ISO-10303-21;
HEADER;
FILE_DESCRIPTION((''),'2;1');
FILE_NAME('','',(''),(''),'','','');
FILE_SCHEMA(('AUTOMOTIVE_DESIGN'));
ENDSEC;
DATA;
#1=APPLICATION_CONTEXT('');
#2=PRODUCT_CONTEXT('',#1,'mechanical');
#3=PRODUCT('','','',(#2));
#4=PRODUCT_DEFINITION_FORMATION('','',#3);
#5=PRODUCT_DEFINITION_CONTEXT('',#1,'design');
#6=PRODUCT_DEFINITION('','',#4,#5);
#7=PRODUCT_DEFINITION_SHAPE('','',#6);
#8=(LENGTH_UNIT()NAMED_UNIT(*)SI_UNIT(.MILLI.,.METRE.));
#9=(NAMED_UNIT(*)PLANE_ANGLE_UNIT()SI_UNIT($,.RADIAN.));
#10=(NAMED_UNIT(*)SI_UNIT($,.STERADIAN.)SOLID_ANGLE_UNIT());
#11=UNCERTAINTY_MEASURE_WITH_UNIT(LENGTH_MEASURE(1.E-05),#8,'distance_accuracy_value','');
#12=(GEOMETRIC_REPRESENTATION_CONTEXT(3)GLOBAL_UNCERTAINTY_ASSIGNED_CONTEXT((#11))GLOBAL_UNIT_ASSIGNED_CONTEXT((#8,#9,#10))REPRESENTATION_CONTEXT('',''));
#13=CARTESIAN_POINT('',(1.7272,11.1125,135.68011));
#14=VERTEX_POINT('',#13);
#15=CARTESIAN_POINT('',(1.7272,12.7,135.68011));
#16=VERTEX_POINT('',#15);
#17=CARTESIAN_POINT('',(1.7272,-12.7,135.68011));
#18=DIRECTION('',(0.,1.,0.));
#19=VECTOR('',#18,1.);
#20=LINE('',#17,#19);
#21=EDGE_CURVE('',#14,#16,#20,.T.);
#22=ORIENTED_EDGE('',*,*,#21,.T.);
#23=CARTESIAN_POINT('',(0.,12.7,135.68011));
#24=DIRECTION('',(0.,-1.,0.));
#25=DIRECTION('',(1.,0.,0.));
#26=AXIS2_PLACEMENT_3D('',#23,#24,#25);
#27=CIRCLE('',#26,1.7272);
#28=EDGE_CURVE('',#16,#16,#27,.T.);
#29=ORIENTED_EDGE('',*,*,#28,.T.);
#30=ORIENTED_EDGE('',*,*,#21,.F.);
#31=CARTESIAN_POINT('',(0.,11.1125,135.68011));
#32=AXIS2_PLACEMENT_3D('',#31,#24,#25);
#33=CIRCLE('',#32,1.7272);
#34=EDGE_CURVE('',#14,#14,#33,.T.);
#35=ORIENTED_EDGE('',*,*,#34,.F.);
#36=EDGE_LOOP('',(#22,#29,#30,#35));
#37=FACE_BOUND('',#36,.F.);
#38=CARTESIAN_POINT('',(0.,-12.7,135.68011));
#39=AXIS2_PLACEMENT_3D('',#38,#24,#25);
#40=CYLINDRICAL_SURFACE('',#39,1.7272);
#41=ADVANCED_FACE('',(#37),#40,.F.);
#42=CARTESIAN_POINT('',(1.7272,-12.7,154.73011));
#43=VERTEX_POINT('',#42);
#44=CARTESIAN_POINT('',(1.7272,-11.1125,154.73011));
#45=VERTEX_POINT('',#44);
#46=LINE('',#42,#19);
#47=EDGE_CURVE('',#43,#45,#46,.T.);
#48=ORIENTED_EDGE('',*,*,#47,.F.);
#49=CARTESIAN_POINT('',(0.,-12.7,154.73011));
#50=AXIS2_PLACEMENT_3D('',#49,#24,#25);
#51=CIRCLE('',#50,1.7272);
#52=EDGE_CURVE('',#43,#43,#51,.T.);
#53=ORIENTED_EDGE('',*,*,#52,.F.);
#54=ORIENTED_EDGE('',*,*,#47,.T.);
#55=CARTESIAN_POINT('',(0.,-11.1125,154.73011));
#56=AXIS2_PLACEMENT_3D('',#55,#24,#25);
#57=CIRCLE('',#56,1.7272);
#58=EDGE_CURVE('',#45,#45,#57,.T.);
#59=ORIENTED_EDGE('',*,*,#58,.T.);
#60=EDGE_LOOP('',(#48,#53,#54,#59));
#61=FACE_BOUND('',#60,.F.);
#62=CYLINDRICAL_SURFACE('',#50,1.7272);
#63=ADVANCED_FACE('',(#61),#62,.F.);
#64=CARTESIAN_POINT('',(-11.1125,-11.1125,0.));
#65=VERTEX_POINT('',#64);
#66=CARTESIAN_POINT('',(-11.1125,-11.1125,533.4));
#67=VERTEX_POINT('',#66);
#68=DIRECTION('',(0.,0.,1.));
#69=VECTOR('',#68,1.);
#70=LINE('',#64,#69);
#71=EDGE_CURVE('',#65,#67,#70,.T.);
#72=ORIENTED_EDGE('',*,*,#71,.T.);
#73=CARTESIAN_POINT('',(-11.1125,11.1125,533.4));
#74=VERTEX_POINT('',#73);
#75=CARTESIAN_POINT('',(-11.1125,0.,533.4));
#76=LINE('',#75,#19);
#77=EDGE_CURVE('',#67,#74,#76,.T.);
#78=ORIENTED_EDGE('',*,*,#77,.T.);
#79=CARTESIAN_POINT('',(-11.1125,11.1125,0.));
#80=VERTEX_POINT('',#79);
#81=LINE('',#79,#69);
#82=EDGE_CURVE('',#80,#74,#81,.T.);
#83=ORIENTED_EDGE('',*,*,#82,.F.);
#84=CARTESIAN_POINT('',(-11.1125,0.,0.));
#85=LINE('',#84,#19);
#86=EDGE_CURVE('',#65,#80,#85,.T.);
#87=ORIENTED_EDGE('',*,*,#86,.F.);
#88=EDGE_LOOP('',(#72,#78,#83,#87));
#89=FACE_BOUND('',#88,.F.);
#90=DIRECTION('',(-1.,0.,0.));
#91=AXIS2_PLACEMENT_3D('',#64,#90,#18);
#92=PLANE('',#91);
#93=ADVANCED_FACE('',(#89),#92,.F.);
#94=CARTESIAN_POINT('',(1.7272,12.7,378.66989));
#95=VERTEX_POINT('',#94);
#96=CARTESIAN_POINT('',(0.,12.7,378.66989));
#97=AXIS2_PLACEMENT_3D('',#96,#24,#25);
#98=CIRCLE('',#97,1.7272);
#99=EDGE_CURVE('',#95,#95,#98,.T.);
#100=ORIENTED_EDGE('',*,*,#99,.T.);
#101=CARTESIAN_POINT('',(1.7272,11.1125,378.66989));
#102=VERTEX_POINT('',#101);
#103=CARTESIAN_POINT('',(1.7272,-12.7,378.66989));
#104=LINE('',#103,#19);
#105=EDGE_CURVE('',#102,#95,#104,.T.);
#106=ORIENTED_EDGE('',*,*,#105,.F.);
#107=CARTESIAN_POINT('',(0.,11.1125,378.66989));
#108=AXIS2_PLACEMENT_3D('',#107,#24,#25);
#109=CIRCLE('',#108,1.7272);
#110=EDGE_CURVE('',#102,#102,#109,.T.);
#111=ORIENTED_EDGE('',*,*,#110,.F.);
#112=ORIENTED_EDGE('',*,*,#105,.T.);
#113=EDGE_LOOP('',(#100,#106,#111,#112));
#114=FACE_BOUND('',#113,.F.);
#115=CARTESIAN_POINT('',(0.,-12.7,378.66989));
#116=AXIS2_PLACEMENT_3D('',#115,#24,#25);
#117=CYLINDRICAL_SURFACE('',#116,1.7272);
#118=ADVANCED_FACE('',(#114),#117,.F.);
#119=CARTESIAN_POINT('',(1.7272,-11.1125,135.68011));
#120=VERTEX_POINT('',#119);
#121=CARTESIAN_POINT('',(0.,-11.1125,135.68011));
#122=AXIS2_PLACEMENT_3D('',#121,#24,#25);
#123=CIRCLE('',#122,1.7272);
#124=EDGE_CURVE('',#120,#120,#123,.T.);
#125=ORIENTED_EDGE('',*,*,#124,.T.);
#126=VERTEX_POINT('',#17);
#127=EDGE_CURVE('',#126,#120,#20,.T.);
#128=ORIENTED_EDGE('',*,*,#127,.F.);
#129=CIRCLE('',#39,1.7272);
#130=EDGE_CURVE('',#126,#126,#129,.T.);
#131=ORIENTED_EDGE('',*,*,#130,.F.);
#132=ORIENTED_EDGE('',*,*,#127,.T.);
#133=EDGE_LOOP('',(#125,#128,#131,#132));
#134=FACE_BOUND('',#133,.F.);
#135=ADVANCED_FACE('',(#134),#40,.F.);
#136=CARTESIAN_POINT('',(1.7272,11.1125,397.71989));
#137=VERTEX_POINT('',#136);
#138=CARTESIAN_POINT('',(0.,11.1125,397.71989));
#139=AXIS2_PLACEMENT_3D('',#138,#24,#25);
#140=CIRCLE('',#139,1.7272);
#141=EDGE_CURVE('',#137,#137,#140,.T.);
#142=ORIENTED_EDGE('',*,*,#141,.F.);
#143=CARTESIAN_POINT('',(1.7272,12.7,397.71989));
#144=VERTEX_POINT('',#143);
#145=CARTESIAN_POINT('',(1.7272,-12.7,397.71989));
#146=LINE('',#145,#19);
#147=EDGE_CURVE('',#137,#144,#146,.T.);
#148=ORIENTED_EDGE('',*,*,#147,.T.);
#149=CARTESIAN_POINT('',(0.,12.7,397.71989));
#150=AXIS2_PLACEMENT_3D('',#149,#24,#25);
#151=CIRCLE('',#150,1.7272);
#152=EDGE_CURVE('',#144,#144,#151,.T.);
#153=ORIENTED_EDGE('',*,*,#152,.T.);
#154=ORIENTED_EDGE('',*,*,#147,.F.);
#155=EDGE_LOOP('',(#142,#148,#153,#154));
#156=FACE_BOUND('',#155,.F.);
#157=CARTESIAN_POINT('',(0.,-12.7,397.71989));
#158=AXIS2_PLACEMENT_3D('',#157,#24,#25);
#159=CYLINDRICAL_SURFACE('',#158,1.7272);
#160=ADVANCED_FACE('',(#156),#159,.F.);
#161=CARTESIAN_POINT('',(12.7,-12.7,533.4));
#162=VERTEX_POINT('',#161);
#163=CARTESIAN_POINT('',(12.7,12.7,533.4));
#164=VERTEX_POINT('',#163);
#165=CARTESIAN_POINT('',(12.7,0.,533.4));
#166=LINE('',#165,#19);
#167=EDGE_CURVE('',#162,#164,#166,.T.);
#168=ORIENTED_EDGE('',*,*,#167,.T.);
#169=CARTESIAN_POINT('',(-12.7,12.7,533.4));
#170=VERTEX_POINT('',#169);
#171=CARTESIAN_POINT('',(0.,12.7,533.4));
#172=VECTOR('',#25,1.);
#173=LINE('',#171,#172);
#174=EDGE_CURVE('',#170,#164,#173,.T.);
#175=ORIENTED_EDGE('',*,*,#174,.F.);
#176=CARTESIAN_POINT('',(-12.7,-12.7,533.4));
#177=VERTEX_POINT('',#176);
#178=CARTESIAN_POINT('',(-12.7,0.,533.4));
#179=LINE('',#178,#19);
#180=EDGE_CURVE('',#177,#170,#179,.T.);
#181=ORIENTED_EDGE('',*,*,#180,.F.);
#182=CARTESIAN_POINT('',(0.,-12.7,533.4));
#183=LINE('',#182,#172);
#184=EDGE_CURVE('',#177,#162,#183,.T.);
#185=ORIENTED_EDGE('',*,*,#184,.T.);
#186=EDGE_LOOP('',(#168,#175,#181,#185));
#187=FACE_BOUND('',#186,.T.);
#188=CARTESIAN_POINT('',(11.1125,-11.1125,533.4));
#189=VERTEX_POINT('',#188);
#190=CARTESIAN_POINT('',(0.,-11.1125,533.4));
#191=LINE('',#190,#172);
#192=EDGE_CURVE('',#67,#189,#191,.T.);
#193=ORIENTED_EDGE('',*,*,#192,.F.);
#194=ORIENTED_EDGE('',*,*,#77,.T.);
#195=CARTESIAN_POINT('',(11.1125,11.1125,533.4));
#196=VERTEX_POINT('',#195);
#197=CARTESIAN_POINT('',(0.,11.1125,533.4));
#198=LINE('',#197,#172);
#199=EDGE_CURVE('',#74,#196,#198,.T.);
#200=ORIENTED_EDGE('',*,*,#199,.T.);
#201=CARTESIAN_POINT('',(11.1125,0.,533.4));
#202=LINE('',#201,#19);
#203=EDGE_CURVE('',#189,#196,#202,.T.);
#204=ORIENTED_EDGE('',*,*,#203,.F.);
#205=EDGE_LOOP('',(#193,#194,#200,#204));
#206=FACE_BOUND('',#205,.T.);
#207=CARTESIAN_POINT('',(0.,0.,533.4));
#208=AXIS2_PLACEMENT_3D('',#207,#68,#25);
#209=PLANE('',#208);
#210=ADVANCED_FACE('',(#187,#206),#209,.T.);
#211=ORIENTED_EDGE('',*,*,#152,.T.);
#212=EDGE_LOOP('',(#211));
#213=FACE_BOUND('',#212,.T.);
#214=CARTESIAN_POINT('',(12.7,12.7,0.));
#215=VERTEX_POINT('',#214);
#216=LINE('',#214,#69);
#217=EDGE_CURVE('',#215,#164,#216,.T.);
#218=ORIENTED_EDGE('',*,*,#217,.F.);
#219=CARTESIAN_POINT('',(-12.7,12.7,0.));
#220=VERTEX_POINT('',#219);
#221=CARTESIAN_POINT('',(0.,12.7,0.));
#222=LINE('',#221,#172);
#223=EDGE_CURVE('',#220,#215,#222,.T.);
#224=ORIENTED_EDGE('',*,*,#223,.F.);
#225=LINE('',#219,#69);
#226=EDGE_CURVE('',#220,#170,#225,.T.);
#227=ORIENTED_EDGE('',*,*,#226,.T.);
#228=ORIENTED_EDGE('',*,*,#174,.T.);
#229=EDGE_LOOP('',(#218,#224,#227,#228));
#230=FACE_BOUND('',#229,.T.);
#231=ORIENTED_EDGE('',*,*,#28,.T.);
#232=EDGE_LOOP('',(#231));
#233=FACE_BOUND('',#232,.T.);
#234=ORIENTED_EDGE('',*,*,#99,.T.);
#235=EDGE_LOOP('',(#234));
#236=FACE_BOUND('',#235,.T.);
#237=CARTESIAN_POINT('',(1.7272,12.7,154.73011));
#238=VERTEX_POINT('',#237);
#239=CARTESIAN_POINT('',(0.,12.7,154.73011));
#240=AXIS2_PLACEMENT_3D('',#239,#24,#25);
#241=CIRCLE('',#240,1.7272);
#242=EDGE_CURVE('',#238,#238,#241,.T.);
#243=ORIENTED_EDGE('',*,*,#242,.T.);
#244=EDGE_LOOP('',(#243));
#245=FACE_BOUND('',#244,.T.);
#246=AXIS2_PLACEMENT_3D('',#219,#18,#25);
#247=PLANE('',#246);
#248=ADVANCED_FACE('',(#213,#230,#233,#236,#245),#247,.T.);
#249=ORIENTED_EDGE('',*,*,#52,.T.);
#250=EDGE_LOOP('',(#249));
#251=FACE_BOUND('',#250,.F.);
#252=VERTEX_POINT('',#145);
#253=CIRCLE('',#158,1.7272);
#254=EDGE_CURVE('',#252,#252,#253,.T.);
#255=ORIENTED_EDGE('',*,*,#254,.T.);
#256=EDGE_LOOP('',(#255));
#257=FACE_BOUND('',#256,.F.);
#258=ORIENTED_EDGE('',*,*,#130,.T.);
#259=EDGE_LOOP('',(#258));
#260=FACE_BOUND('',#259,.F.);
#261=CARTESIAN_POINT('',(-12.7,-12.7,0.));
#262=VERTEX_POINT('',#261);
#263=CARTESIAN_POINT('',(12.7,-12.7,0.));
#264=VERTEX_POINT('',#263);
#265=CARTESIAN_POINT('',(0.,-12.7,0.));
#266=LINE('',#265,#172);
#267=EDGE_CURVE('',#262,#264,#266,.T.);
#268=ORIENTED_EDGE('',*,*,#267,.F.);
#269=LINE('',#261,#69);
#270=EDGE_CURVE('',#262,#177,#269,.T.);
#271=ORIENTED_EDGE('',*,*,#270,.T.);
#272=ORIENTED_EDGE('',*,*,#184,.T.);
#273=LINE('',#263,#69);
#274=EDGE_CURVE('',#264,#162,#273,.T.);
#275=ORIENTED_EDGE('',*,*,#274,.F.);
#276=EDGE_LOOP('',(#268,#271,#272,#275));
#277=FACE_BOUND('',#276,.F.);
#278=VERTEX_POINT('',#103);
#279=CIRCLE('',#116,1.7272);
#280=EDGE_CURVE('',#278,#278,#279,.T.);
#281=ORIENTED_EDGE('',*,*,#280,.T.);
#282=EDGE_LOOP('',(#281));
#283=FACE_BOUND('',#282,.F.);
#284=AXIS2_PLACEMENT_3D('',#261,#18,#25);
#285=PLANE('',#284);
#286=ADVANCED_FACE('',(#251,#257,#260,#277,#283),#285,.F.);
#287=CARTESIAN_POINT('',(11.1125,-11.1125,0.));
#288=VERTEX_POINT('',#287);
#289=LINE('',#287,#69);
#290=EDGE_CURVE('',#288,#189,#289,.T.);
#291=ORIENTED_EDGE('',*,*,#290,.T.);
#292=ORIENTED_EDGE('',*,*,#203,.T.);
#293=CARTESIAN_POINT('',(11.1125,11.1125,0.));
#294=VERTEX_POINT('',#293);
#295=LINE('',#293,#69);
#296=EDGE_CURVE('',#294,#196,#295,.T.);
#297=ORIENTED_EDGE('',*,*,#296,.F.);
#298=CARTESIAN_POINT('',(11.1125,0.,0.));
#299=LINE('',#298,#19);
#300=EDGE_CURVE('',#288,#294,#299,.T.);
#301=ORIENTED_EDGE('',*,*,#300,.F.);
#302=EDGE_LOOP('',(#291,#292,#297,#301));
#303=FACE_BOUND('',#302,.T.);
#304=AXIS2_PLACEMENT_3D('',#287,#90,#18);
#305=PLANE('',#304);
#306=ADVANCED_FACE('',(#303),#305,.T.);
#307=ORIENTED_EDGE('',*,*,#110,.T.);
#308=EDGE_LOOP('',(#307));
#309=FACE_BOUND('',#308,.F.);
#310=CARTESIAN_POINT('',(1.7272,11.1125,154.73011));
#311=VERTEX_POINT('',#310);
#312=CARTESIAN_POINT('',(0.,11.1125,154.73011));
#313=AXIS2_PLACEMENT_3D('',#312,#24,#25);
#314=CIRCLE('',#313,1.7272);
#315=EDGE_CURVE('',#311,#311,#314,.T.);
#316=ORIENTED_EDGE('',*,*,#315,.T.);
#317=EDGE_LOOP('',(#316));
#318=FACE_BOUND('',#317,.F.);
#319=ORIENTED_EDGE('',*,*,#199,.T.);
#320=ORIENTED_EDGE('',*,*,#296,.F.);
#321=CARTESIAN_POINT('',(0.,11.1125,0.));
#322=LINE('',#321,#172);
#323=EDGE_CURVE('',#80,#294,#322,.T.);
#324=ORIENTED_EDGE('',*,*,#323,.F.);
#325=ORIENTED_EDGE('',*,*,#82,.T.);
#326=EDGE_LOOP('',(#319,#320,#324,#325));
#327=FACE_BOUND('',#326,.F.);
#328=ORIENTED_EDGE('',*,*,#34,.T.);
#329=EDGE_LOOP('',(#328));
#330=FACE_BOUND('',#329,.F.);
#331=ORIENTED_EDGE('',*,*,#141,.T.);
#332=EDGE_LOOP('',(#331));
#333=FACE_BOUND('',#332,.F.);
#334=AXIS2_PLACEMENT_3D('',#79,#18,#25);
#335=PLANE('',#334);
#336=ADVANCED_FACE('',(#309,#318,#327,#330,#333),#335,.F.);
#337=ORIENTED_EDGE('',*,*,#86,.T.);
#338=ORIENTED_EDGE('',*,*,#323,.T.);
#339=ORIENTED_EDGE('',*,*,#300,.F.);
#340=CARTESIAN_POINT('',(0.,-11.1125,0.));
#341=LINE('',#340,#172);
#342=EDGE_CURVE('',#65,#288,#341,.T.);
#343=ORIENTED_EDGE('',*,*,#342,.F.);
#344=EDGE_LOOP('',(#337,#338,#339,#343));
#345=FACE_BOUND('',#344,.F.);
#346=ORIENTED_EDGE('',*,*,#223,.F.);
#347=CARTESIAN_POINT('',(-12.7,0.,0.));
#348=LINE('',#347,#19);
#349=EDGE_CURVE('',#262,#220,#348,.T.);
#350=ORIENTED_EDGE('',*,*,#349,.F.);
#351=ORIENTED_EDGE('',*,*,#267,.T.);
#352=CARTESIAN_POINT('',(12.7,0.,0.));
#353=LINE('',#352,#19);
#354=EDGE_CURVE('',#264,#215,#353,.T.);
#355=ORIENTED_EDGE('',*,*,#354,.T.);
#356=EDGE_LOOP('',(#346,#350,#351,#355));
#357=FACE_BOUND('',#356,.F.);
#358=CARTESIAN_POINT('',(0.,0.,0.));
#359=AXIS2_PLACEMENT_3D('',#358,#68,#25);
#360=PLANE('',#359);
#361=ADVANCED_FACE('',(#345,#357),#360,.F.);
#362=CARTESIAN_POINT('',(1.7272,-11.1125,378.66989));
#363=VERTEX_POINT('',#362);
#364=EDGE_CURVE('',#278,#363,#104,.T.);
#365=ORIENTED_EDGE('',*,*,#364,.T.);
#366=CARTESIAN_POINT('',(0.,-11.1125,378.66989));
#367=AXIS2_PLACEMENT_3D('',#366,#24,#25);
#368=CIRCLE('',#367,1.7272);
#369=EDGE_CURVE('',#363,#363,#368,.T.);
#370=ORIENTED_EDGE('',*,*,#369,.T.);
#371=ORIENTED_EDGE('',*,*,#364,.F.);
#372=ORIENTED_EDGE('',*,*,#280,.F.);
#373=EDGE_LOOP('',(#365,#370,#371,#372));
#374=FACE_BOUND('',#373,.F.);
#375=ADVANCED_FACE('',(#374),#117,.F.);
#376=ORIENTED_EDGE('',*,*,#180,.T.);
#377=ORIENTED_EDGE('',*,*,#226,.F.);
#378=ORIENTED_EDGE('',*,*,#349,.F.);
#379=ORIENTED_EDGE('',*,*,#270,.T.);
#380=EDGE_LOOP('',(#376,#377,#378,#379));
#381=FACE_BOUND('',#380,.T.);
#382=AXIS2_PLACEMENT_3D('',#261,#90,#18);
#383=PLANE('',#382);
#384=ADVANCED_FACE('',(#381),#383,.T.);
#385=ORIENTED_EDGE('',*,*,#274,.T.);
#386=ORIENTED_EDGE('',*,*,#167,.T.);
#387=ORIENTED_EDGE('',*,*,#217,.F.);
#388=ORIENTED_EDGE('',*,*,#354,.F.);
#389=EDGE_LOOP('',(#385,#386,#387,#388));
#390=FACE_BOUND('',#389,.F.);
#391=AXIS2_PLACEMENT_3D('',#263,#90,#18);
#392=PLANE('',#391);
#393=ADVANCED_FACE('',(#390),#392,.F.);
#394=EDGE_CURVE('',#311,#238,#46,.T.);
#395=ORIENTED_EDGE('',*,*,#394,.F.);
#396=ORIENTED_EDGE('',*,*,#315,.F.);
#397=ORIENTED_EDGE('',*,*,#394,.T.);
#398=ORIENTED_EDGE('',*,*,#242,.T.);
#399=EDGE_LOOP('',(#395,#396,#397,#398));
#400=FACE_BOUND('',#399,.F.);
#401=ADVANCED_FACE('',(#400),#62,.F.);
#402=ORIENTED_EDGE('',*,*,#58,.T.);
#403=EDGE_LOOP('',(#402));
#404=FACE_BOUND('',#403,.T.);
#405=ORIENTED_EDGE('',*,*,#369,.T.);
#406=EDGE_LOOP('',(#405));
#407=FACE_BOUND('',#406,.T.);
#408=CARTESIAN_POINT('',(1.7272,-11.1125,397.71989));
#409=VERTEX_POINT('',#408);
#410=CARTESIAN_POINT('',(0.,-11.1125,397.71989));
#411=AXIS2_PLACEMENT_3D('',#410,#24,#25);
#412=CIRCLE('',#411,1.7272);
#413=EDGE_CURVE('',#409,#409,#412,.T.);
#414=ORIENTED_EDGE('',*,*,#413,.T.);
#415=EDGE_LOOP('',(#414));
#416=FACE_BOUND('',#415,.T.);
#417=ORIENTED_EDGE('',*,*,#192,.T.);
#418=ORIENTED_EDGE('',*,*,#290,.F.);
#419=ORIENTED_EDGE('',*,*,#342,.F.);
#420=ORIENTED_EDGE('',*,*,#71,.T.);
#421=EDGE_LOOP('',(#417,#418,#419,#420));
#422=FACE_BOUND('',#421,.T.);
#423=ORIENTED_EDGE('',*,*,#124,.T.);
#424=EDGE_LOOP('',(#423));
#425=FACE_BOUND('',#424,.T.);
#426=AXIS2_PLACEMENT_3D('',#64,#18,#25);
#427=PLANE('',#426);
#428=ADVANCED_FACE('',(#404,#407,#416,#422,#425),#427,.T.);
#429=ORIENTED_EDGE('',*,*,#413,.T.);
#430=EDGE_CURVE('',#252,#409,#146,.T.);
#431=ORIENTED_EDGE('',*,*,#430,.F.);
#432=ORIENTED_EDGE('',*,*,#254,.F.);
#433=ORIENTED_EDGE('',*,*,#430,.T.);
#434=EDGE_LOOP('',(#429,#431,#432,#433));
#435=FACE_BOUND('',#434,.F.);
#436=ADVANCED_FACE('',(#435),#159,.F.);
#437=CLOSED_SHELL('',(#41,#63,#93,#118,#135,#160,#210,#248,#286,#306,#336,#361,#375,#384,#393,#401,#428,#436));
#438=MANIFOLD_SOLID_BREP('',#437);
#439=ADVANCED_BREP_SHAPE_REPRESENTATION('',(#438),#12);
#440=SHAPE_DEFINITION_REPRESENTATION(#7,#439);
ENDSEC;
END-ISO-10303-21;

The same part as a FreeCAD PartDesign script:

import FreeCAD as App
import Part
import Sketcher

V = App.Vector
Q = App.Units.Quantity

doc = App.newDocument("Part")
body = doc.addObject("PartDesign::Body", "Body")

sketch1 = doc.addObject("Sketcher::SketchObject", "Sketch")
body.addObject(sketch1)
sketch1.AttachmentSupport = (doc.XY_Plane, [""])
sketch1.MapMode = "FlatFace"
sketch1.addGeometry(Part.LineSegment(V(-12.7, 12.7, 0), V(-12.7, -12.7, 0)), False)
sketch1.addGeometry(Part.LineSegment(V(-12.7, -12.7, 0), V(12.7, -12.7, 0)), False)
sketch1.addGeometry(Part.LineSegment(V(12.7, -12.7, 0), V(12.7, 12.7, 0)), False)
sketch1.addGeometry(Part.LineSegment(V(12.7, 12.7, 0), V(-12.7, 12.7, 0)), False)
sketch1.addGeometry(Part.LineSegment(V(11.1125, -11.1125, 0), V(-11.1125, -11.1125, 0)), False)
sketch1.addGeometry(Part.LineSegment(V(-11.1125, -11.1125, 0), V(-11.1125, 11.1125, 0)), False)
sketch1.addGeometry(Part.LineSegment(V(-11.1125, 11.1125, 0), V(11.1125, 11.1125, 0)), False)
sketch1.addGeometry(Part.LineSegment(V(11.1125, 11.1125, 0), V(11.1125, -11.1125, 0)), False)
sketch1.addConstraint(Sketcher.Constraint("Coincident", 0, 2, 1, 1))
sketch1.addConstraint(Sketcher.Constraint("Coincident", 1, 2, 2, 1))
sketch1.addConstraint(Sketcher.Constraint("Coincident", 2, 2, 3, 1))
sketch1.addConstraint(Sketcher.Constraint("Coincident", 3, 2, 0, 1))
sketch1.addConstraint(Sketcher.Constraint("Coincident", 4, 2, 5, 1))
sketch1.addConstraint(Sketcher.Constraint("Coincident", 5, 2, 6, 1))
sketch1.addConstraint(Sketcher.Constraint("Coincident", 6, 2, 7, 1))
sketch1.addConstraint(Sketcher.Constraint("Coincident", 7, 2, 4, 1))
sketch1.addConstraint(Sketcher.Constraint("Vertical", 0))
sketch1.addConstraint(Sketcher.Constraint("Horizontal", 1))
sketch1.addConstraint(Sketcher.Constraint("Vertical", 2))
sketch1.addConstraint(Sketcher.Constraint("Horizontal", 3))
sketch1.addConstraint(Sketcher.Constraint("Horizontal", 4))
sketch1.addConstraint(Sketcher.Constraint("Vertical", 5))
sketch1.addConstraint(Sketcher.Constraint("Horizontal", 6))
sketch1.addConstraint(Sketcher.Constraint("Vertical", 7))
sketch1.addConstraint(Sketcher.Constraint("Symmetric", 0, 2, 2, 2, -1, 1))
sketch1.addConstraint(Sketcher.Constraint("Symmetric", 4, 2, 6, 2, -1, 1))
sketch1.addConstraint(Sketcher.Constraint("Equal", 3, 0))
sketch1.addConstraint(Sketcher.Constraint("Equal", 6, 5))
sketch1.addConstraint(Sketcher.Constraint("DistanceX", 1, 1, 1, 2, Q("1 in")))
sketch1.addConstraint(Sketcher.Constraint("DistanceX", 4, 2, 4, 1, Q("0.875 in")))
pad1 = doc.addObject("PartDesign::Pad", "Pad")
body.addObject(pad1)
pad1.Profile = sketch1
pad1.Length = Q("21 in")

sketch2 = doc.addObject("Sketcher::SketchObject", "Sketch001")
body.addObject(sketch2)
sketch2.AttachmentSupport = (doc.XZ_Plane, [""])
sketch2.MapMode = "FlatFace"
sketch2.AttachmentOffset = App.Placement(V(0, 0, 0.5 * 25.4), App.Rotation())
sketch2.addGeometry(Part.Circle(V(0, 135.68011, 0), V(0, 0, 1), 1.7272), False)
sketch2.addGeometry(Part.Circle(V(0, 154.73011, 0), V(0, 0, 1), 1.7272), False)
sketch2.addGeometry(Part.Circle(V(0, 397.71989, 0), V(0, 0, 1), 1.7272), False)
sketch2.addGeometry(Part.Circle(V(0, 378.66989, 0), V(0, 0, 1), 1.7272), False)
sketch2.addConstraint(Sketcher.Constraint("Equal", 0, 1))
sketch2.addConstraint(Sketcher.Constraint("Equal", 1, 2))
sketch2.addConstraint(Sketcher.Constraint("Equal", 2, 3))
sketch2.addConstraint(Sketcher.Constraint("PointOnObject", 0, 3, -2))
sketch2.addConstraint(Sketcher.Constraint("PointOnObject", 1, 3, -2))
sketch2.addConstraint(Sketcher.Constraint("PointOnObject", 2, 3, -2))
sketch2.addConstraint(Sketcher.Constraint("PointOnObject", 3, 3, -2))
sketch2.addConstraint(Sketcher.Constraint("Diameter", 0, Q("0.136 in")))
sketch2.addConstraint(Sketcher.Constraint("DistanceY", 0, 3, 1, 3, Q("0.75 in")))
sketch2.addConstraint(Sketcher.Constraint("DistanceY", 3, 3, 2, 3, Q("0.75 in")))
sketch2.addConstraint(Sketcher.Constraint("DistanceY", -1, 1, 0, 3, Q("135.68011 mm")))
sketch2.addConstraint(Sketcher.Constraint("DistanceY", -1, 1, 2, 3, Q("397.71989 mm")))
pocket1 = doc.addObject("PartDesign::Pocket", "Pocket")
body.addObject(pocket1)
pocket1.Profile = sketch2
pocket1.Type = "ThroughAll"

doc.recompute()
